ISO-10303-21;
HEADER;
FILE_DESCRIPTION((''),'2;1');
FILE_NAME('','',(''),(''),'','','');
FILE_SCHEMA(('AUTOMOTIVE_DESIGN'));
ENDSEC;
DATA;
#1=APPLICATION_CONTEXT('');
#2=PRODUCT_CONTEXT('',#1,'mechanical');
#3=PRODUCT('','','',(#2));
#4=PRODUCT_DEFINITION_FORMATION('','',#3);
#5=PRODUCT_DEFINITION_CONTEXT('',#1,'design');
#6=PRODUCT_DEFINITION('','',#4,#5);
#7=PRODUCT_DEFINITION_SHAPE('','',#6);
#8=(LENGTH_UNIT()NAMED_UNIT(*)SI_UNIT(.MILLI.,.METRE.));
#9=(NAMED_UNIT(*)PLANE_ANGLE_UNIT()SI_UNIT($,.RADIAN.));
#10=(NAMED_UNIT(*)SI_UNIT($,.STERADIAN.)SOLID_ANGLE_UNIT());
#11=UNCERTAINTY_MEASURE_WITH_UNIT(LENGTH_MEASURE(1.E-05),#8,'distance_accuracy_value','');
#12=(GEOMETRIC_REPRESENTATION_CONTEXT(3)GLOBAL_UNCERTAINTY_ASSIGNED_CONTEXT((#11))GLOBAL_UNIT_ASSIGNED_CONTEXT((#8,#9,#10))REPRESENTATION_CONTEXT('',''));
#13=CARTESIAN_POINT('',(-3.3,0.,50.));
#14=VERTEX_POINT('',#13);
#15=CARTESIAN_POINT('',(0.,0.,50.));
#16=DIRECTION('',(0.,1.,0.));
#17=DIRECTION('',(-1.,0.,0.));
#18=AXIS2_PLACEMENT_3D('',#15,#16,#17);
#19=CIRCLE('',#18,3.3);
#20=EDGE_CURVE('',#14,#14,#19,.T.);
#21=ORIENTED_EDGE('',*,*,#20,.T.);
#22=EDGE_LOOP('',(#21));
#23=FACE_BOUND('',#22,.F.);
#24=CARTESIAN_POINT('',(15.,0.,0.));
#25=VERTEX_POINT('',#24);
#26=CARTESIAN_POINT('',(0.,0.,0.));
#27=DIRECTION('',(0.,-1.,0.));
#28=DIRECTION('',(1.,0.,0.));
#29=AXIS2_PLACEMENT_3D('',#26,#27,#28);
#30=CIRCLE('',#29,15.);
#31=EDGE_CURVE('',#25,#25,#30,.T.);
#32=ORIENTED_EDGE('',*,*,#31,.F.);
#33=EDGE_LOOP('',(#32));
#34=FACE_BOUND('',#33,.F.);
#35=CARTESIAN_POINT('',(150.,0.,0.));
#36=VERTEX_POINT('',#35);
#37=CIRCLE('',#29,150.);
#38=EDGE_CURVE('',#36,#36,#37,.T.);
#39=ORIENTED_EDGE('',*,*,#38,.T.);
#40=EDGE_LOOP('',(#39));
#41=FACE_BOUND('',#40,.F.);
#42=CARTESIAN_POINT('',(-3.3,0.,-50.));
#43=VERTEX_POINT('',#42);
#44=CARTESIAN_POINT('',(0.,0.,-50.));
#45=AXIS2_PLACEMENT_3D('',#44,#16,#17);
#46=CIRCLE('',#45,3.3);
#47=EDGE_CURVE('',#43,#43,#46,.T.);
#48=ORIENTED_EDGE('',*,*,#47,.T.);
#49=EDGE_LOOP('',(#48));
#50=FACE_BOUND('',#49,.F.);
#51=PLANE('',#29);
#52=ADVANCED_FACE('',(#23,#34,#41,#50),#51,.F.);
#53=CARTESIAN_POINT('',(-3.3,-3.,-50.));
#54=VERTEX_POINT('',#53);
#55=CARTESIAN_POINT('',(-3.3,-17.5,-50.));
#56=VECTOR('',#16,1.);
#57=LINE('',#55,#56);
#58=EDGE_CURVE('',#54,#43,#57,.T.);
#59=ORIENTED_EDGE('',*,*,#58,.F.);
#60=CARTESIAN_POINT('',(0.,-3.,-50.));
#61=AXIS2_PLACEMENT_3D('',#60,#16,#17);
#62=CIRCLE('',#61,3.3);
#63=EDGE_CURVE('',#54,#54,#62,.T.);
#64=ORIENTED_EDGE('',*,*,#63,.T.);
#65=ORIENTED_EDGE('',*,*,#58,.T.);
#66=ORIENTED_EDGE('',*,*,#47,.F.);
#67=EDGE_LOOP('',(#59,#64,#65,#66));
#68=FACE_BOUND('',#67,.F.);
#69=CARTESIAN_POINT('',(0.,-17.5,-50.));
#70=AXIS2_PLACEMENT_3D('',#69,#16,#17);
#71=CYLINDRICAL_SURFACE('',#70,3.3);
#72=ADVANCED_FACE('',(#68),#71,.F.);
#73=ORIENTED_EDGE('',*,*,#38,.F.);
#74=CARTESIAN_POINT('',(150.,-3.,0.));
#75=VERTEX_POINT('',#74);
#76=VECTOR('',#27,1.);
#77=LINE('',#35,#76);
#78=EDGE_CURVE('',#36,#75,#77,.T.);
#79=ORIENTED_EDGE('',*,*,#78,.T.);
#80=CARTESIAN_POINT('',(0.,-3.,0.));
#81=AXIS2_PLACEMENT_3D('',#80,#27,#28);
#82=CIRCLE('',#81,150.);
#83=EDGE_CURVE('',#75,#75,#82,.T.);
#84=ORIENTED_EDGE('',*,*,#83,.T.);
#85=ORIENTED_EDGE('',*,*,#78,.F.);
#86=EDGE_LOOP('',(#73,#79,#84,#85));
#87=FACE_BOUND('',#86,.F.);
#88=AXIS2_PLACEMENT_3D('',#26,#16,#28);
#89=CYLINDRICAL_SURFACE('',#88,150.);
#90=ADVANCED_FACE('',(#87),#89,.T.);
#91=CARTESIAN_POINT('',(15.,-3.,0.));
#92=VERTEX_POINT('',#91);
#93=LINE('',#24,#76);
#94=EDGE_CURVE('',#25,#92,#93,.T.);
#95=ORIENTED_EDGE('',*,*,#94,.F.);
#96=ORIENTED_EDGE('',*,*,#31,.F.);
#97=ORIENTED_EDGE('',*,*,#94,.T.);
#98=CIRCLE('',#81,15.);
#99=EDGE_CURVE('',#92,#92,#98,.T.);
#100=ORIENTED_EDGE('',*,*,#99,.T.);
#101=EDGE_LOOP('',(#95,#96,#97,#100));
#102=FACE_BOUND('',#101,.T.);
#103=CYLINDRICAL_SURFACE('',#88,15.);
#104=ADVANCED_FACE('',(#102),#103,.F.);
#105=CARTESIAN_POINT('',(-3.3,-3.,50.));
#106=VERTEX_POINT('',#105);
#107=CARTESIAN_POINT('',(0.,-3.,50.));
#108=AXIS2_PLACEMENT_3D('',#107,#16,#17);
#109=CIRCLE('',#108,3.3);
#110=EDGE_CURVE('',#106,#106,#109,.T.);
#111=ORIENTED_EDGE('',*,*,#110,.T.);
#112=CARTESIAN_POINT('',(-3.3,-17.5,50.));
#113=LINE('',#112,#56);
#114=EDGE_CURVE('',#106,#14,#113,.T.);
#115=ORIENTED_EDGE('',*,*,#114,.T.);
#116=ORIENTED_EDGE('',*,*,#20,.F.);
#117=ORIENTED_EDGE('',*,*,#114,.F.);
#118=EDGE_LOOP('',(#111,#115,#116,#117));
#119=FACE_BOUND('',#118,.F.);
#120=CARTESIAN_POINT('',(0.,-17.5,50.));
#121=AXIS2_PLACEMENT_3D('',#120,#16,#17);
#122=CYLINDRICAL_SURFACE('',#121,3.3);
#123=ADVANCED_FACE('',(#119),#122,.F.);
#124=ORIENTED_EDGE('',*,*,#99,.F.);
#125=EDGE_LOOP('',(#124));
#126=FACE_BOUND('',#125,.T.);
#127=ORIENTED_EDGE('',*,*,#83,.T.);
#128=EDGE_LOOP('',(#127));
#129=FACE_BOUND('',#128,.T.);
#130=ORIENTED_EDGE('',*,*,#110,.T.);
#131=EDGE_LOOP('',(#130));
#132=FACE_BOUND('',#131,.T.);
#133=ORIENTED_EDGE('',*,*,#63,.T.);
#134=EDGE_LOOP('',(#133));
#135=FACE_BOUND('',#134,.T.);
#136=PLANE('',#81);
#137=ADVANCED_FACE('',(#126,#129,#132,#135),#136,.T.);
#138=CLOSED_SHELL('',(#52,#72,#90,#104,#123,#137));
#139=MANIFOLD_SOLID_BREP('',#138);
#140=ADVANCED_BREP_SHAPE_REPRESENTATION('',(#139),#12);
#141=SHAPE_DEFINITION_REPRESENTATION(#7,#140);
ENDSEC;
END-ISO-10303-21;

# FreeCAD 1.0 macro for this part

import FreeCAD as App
import Part
import Sketcher
from FreeCAD import Vector

doc = App.newDocument("Part")
body = doc.addObject("PartDesign::Body", "Body")

# Sketch on XZ plane
sketch1 = body.newObject("Sketcher::SketchObject", "Sketch")
sketch1.AttachmentSupport = (doc.getObject("XZ_Plane"), [""])
sketch1.MapMode = "FlatFace"
sketch1.addGeometry([
    Part.Circle(Vector(0, 0, 0), Vector(0, 0, 1), 150),
    Part.Circle(Vector(0, 0, 0), Vector(0, 0, 1), 15),
], False)
sketch1.addConstraint([
    Sketcher.Constraint("Coincident", 0, 3, -1, 1),
    Sketcher.Constraint("Coincident", 1, 3, -1, 1),
    Sketcher.Constraint("Diameter", 0, 300.0),
    Sketcher.Constraint("Diameter", 1, 30.0),
])
pad1 = body.newObject("PartDesign::Pad", "Pad")
pad1.Profile = sketch1
pad1.Length = 3

# Sketch on XZ plane
sketch2 = body.newObject("Sketcher::SketchObject", "Sketch001")
sketch2.AttachmentSupport = (doc.getObject("XZ_Plane"), [""])
sketch2.MapMode = "FlatFace"
sketch2.AttachmentOffset = App.Placement(Vector(0, 0, 3), App.Rotation())
sketch2.addGeometry([
    Part.Circle(Vector(0, 50, 0), Vector(0, 0, 1), 3.3),
    Part.Circle(Vector(0, -50, 0), Vector(0, 0, 1), 3.3),
], False)
sketch2.addConstraint([
    Sketcher.Constraint("Equal", 0, 1),
    Sketcher.Constraint("Symmetric", 0, 3, 1, 3, -1, 1),
    Sketcher.Constraint("PointOnObject", 0, 3, -2),
    Sketcher.Constraint("Diameter", 0, 6.6),
    Sketcher.Constraint("DistanceY", -1, 1, 0, 3, 50.0),
])
doc.recompute()
hole = body.newObject("PartDesign::Hole", "Hole")
hole.Profile = sketch2
hole.ThreadType = "None"
hole.Diameter = 6.6
hole.DepthType = "Dimension"
hole.Depth = 14.5
hole.DrillPoint = "Angled"
hole.DrillPointAngle = 118

doc.recompute()
